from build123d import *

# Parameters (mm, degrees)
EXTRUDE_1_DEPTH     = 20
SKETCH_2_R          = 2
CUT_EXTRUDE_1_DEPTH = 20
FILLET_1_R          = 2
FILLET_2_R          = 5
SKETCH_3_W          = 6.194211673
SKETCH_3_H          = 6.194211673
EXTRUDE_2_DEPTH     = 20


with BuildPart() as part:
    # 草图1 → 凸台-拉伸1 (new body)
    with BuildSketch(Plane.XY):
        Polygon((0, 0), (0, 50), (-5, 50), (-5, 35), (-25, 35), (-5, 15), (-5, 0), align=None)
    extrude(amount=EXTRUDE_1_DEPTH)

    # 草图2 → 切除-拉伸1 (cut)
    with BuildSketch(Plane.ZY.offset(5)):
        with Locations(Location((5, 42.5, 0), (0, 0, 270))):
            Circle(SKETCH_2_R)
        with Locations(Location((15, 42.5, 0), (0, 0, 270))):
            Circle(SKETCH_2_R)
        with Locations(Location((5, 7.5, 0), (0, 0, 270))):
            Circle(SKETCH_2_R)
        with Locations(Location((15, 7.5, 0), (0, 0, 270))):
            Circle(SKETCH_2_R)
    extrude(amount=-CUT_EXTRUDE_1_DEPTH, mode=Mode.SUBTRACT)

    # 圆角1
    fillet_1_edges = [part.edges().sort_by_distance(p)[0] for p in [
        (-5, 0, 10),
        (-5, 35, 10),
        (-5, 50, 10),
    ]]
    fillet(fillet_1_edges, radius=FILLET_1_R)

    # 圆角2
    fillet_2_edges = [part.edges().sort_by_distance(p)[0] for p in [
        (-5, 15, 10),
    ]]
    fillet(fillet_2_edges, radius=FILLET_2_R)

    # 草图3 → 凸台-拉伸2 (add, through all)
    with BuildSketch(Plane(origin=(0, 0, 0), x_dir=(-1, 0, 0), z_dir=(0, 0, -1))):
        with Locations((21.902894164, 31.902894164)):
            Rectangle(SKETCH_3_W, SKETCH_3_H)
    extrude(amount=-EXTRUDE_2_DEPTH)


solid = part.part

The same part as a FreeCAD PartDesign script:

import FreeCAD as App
import Part
import Sketcher


def edges_at(feature, points):
    """Names of the edges that pass closest to the given points."""
    edges = feature.Shape.Edges
    near = lambda p: min(range(len(edges)), key=lambda i: edges[i].distToShape(Part.Vertex(*p))[0])
    return sorted({f"Edge{near(p) + 1}" for p in points})


def add_polygon(sketch, points):
    """Adds a closed chain of lines whose ends are joined by coincident constraints."""
    first, n = sketch.GeometryCount, len(points)
    for a, b in zip(points, points[1:] + points[:1]):
        sketch.addGeometry(Part.LineSegment(App.Vector(*a, 0), App.Vector(*b, 0)), False)
    for i in range(n):
        sketch.addConstraint(Sketcher.Constraint("Coincident", first + i, 2, first + (i + 1) % n, 1))

doc = App.newDocument("Part")
body = doc.addObject("PartDesign::Body", "Body")

# Sketch on XY plane
sketch1 = body.newObject("Sketcher::SketchObject", "Sketch")
sketch1.AttachmentSupport = (doc.getObject("XY_Plane"), [""])
sketch1.MapMode = "FlatFace"
add_polygon(sketch1, [(0, 0), (0, 50), (-5, 50), (-5, 35), (-25, 35), (-5, 15), (-5, 0)])  # lines 0-6
sketch1.addConstraint(Sketcher.Constraint("Vertical", 0))
sketch1.addConstraint(Sketcher.Constraint("Horizontal", 1))
sketch1.addConstraint(Sketcher.Constraint("Vertical", 2))
sketch1.addConstraint(Sketcher.Constraint("Horizontal", 3))
sketch1.addConstraint(Sketcher.Constraint("Vertical", 5))
sketch1.addConstraint(Sketcher.Constraint("Horizontal", 6))
sketch1.addConstraint(Sketcher.Constraint("Coincident", 6, 2, -1, 1))
sketch1.addConstraint(Sketcher.Constraint("Vertical", 2, 2, 4, 2))
sketch1.addConstraint(Sketcher.Constraint("Equal", 2, 5))
sketch1.addConstraint(Sketcher.Constraint("DistanceX", 1, 2, 1, 1, 5.0))
sketch1.addConstraint(Sketcher.Constraint("DistanceX", 3, 2, 3, 1, 20.0))
sketch1.addConstraint(Sketcher.Constraint("DistanceY", 0, 1, 0, 2, 50.0))
sketch1.addConstraint(Sketcher.Constraint("DistanceY", 2, 2, 2, 1, 15.0))
pad1 = body.newObject("PartDesign::Pad", "Pad")
pad1.Profile = sketch1
pad1.Length = 20

# Sketch on YZ plane
sketch2 = body.newObject("Sketcher::SketchObject", "Sketch001")
sketch2.AttachmentSupport = (doc.getObject("YZ_Plane"), [""])
sketch2.MapMode = "FlatFace"
sketch2.AttachmentOffset = App.Placement(App.Vector(0, 0, -5), App.Rotation())
sketch2.addGeometry(Part.Circle(App.Vector(42.5, 5, 0), App.Vector(0, 0, 1), 2), False)
sketch2.addGeometry(Part.Circle(App.Vector(42.5, 15, 0), App.Vector(0, 0, 1), 2), False)
sketch2.addGeometry(Part.Circle(App.Vector(7.5, 5, 0), App.Vector(0, 0, 1), 2), False)
sketch2.addGeometry(Part.Circle(App.Vector(7.5, 15, 0), App.Vector(0, 0, 1), 2), False)
sketch2.addConstraint(Sketcher.Constraint("Equal", 0, 1))
sketch2.addConstraint(Sketcher.Constraint("Equal", 1, 2))
sketch2.addConstraint(Sketcher.Constraint("Equal", 2, 3))
sketch2.addConstraint(Sketcher.Constraint("Horizontal", 0, 3, 2, 3))
sketch2.addConstraint(Sketcher.Constraint("Horizontal", 1, 3, 3, 3))
sketch2.addConstraint(Sketcher.Constraint("Vertical", 0, 3, 1, 3))
sketch2.addConstraint(Sketcher.Constraint("Vertical", 2, 3, 3, 3))
sketch2.addConstraint(Sketcher.Constraint("Diameter", 0, 4.0))
sketch2.addConstraint(Sketcher.Constraint("DistanceY", -1, 1, 0, 3, 5.0))
sketch2.addConstraint(Sketcher.Constraint("DistanceY", -1, 1, 1, 3, 15.0))
sketch2.addConstraint(Sketcher.Constraint("DistanceX", 2, 3, 0, 3, 35.0))
sketch2.addConstraint(Sketcher.Constraint("DistanceX", -1, 1, 0, 3, 42.5))
pocket1 = body.newObject("PartDesign::Pocket", "Pocket")
pocket1.Profile = sketch2
pocket1.Length = 20
pocket1.Reversed = True
doc.recompute()

fillet = body.newObject("PartDesign::Fillet", "Fillet")
fillet.Base = (pocket1, edges_at(pocket1, [(-5, 0, 10), (-5, 35, 10), (-5, 50, 10)]))
fillet.Radius = 2
doc.recompute()

fillet2 = body.newObject("PartDesign::Fillet", "Fillet001")
fillet2.Base = (fillet, edges_at(fillet, [(-5, 15, 10)]))
fillet2.Radius = 5

# Sketch on XY plane
sketch3 = body.newObject("Sketcher::SketchObject", "Sketch002")
sketch3.AttachmentSupport = (doc.getObject("XY_Plane"), [""])
sketch3.MapMode = "FlatFace"
add_polygon(sketch3, [(-19, 35), (-19, 29), (-25, 29), (-25, 35)])  # lines 0-3
sketch3.addConstraint(Sketcher.Constraint("Vertical", 0))
sketch3.addConstraint(Sketcher.Constraint("Horizontal", 1))
sketch3.addConstraint(Sketcher.Constraint("Vertical", 2))
sketch3.addConstraint(Sketcher.Constraint("Horizontal", 3))
sketch3.addConstraint(Sketcher.Constraint("Equal", 3, 0))
sketch3.addConstraint(Sketcher.Constraint("DistanceX", 1, 2, -1, 1, 25.0))
sketch3.addConstraint(Sketcher.Constraint("DistanceY", -1, 1, 2, 2, 35.0))
sketch3.addConstraint(Sketcher.Constraint("DistanceX", 1, 2, 1, 1, 6.194212))
pad2 = body.newObject("PartDesign::Pad", "Pad001")
pad2.Profile = sketch3
pad2.Type = "UpToLast"

doc.recompute()
